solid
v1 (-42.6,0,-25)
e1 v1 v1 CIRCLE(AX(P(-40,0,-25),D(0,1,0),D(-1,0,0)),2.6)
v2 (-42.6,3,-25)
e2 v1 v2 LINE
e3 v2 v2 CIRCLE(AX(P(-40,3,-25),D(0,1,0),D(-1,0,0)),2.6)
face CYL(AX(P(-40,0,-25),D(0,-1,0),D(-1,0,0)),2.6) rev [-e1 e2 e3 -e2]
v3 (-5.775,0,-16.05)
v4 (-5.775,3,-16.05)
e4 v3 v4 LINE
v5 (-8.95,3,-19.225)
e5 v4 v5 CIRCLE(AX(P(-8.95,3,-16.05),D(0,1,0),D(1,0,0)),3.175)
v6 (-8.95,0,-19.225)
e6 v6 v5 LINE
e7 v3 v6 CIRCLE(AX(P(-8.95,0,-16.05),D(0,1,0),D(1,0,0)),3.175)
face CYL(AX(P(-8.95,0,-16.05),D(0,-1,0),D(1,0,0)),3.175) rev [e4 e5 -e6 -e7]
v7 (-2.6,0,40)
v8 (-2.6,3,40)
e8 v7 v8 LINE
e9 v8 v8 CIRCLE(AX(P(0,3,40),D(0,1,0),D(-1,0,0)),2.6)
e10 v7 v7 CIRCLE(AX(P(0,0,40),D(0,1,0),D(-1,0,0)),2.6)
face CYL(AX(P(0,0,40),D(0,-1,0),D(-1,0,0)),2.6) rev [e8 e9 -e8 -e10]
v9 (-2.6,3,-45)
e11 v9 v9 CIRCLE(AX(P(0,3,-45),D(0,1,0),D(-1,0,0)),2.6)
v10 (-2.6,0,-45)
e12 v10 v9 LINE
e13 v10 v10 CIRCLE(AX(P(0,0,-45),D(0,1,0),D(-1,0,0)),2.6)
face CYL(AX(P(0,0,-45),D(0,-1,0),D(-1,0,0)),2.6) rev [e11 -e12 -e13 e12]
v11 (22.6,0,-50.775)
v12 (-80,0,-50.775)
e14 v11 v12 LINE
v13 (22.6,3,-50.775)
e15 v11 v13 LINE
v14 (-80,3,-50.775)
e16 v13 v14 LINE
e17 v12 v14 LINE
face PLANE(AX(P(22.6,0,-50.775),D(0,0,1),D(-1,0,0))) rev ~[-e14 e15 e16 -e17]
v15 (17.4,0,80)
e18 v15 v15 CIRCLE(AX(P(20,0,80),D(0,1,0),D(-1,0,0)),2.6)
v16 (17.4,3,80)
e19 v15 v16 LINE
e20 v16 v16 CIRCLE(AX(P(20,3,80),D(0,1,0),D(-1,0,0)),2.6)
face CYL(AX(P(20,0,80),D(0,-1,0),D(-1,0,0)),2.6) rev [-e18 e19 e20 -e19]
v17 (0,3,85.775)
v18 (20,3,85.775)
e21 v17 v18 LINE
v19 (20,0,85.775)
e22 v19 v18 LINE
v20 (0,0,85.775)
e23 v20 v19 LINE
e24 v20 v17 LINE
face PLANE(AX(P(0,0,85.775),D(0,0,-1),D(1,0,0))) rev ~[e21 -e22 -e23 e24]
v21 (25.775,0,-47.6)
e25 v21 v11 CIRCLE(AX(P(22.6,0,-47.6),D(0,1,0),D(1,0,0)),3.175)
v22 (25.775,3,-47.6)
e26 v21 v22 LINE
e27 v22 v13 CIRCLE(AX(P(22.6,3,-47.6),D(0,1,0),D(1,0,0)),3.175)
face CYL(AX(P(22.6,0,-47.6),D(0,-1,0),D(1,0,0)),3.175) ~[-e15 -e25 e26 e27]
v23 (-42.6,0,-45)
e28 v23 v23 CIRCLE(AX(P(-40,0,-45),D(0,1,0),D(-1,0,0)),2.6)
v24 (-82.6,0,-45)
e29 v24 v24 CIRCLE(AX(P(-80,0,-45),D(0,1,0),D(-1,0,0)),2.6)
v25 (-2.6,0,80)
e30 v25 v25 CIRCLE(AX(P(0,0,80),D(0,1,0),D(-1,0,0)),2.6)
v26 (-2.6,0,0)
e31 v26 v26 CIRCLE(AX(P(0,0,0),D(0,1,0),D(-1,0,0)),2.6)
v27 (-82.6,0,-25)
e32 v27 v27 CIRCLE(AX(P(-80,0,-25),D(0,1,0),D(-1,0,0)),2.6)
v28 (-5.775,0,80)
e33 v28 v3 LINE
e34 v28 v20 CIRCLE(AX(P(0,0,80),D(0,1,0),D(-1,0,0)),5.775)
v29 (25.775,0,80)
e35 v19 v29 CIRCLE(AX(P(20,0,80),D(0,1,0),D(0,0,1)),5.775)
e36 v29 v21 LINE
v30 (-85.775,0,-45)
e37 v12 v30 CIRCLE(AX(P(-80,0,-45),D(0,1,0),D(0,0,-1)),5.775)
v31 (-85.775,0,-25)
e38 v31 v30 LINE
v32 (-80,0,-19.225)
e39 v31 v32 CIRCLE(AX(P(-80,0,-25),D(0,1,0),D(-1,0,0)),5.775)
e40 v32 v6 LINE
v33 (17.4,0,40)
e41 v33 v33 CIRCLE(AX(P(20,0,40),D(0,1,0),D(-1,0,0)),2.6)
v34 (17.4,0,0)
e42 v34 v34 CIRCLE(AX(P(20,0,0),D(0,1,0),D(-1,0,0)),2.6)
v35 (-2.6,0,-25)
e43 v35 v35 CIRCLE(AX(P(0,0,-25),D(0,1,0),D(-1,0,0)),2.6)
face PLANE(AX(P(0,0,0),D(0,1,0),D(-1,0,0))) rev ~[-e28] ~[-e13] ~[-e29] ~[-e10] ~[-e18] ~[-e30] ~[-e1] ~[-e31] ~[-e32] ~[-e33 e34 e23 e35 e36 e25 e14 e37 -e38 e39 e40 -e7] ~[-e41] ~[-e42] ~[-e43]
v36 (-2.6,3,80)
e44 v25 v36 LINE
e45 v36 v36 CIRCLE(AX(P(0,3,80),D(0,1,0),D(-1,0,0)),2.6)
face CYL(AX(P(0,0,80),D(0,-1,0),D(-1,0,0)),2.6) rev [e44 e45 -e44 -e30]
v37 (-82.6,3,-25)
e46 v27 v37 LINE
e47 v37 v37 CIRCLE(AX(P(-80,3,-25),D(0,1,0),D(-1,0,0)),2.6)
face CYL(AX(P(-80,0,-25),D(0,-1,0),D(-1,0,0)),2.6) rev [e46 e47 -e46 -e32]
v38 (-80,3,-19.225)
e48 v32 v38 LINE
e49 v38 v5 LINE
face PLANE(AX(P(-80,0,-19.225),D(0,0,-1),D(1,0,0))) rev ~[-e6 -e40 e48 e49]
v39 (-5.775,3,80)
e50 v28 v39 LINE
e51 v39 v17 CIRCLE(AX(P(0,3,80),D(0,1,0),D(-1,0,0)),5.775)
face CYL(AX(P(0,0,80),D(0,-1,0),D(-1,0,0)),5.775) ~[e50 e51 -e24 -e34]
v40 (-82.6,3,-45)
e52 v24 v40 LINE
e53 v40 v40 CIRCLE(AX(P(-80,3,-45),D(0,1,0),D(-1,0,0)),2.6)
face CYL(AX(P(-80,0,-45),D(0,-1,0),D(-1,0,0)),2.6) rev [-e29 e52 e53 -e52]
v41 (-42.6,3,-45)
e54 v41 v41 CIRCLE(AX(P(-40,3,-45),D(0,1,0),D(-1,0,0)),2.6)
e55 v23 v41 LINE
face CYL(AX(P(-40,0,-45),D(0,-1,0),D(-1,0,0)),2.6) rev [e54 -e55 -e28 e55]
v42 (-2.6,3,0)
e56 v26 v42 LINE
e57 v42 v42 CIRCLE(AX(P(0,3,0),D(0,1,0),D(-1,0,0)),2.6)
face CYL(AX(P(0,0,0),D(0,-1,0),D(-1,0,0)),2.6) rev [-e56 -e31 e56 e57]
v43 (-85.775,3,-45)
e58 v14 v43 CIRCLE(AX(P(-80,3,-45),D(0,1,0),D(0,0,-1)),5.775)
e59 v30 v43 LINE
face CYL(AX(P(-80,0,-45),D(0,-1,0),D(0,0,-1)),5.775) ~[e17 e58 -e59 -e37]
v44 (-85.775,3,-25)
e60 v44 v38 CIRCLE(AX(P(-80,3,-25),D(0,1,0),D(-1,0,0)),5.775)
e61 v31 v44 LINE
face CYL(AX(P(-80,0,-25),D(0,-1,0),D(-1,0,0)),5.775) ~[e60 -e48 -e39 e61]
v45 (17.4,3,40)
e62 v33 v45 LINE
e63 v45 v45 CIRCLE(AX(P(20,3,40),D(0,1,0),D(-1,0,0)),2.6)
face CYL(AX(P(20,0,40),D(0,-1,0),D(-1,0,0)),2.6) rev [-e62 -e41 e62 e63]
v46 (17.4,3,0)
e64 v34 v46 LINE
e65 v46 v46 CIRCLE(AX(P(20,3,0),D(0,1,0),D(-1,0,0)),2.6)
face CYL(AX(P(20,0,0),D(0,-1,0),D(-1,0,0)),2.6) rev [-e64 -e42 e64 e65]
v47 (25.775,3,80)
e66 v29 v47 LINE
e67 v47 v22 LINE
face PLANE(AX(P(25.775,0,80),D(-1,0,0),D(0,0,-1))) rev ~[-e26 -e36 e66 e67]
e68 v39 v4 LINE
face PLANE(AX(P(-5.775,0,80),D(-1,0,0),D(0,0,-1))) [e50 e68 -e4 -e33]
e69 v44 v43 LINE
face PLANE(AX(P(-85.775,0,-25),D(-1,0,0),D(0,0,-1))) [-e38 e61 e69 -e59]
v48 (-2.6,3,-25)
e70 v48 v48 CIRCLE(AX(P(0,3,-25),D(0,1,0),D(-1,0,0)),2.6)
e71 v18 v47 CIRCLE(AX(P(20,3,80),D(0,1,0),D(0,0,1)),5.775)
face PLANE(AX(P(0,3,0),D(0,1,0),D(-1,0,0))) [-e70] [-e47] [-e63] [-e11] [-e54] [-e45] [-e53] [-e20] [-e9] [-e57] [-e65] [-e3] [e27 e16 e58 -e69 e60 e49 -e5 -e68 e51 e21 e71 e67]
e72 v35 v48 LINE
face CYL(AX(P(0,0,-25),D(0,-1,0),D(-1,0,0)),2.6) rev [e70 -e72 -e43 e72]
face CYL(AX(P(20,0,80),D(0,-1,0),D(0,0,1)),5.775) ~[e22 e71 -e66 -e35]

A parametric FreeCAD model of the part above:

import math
import FreeCAD as App
import Part
import Sketcher
from FreeCAD import Vector
Q = App.Units.Quantity

doc = App.newDocument("Part")
body = doc.addObject("PartDesign::Body", "Body")

# Sketch on XZ plane
sketch1 = doc.addObject("Sketcher::SketchObject", "Sketch")
body.addObject(sketch1)
sketch1.AttachmentSupport = (doc.XZ_Plane, [""])
sketch1.MapMode = "FlatFace"
sketch1.addGeometry([
    Part.LineSegment(Vector(-5.8, -16.1, 0), Vector(-5.8, 80, 0)),  # 0
    Part.ArcOfCircle(Part.Circle(Vector(0, 80, 0), Vector(0, 0, 1), 5.8), math.radians(90), math.radians(180)),  # 1
    Part.LineSegment(Vector(0, 85.8, 0), Vector(20, 85.8, 0)),  # 2
    Part.ArcOfCircle(Part.Circle(Vector(20, 80, 0), Vector(0, 0, 1), 5.8), math.radians(0), math.radians(90)),  # 3
    Part.LineSegment(Vector(25.8, 80, 0), Vector(25.8, -47.6, 0)),  # 4
    Part.ArcOfCircle(Part.Circle(Vector(22.6, -47.6, 0), Vector(0, 0, 1), 3.2), math.radians(-90), math.radians(0)),  # 5
    Part.LineSegment(Vector(22.6, -50.8, 0), Vector(-80, -50.8, 0)),  # 6
    Part.ArcOfCircle(Part.Circle(Vector(-80, -45, 0), Vector(0, 0, 1), 5.8), math.radians(180), math.radians(270)),  # 7
    Part.LineSegment(Vector(-85.8, -45, 0), Vector(-85.8, -25, 0)),  # 8
    Part.ArcOfCircle(Part.Circle(Vector(-80, -25, 0), Vector(0, 0, 1), 5.8), math.radians(90), math.radians(180)),  # 9
    Part.LineSegment(Vector(-80, -19.2, 0), Vector(-8.9, -19.2, 0)),  # 10
    Part.ArcOfCircle(Part.Circle(Vector(-8.9, -16.1, 0), Vector(0, 0, 1), 3.2), math.radians(-90), math.radians(0)),  # 11
    Part.Circle(Vector(0, -45, 0), Vector(0, 0, 1), 2.6),  # 12
    Part.Circle(Vector(0, -25, 0), Vector(0, 0, 1), 2.6),  # 13
    Part.Circle(Vector(20, 0, 0), Vector(0, 0, 1), 2.6),  # 14
    Part.Circle(Vector(0, 0, 0), Vector(0, 0, 1), 2.6),  # 15
    Part.Circle(Vector(-40, -45, 0), Vector(0, 0, 1), 2.6),  # 16
    Part.Circle(Vector(-40, -25, 0), Vector(0, 0, 1), 2.6),  # 17
    Part.Circle(Vector(-80, -45, 0), Vector(0, 0, 1), 2.6),  # 18
    Part.Circle(Vector(-80, -25, 0), Vector(0, 0, 1), 2.6),  # 19
    Part.Circle(Vector(20, 40, 0), Vector(0, 0, 1), 2.6),  # 20
    Part.Circle(Vector(0, 40, 0), Vector(0, 0, 1), 2.6),  # 21
    Part.Circle(Vector(20, 80, 0), Vector(0, 0, 1), 2.6),  # 22
    Part.Circle(Vector(0, 80, 0), Vector(0, 0, 1), 2.6),  # 23
], False)
sketch1.addConstraint([
    Sketcher.Constraint("Tangent", 0, 2, 1, 2),
    Sketcher.Constraint("Tangent", 1, 1, 2, 1),
    Sketcher.Constraint("Tangent", 2, 2, 3, 2),
    Sketcher.Constraint("Tangent", 3, 1, 4, 1),
    Sketcher.Constraint("Tangent", 4, 2, 5, 2),
    Sketcher.Constraint("Tangent", 5, 1, 6, 1),
    Sketcher.Constraint("Tangent", 6, 2, 7, 2),
    Sketcher.Constraint("Tangent", 7, 1, 8, 1),
    Sketcher.Constraint("Tangent", 8, 2, 9, 2),
    Sketcher.Constraint("Tangent", 9, 1, 10, 1),
    Sketcher.Constraint("Tangent", 10, 2, 11, 1),
    Sketcher.Constraint("Tangent", 11, 2, 0, 1),
    Sketcher.Constraint("Vertical", 0),
    Sketcher.Constraint("Horizontal", 2),
    Sketcher.Constraint("Vertical", 4),
    Sketcher.Constraint("Horizontal", 6),
    Sketcher.Constraint("Vertical", 8),
    Sketcher.Constraint("Horizontal", 10),
    Sketcher.Constraint("Coincident", 15, 3, -1, 1),
    Sketcher.Constraint("Coincident", 18, 3, 7, 3),
    Sketcher.Constraint("Coincident", 19, 3, 9, 3),
    Sketcher.Constraint("Coincident", 22, 3, 3, 3),
    Sketcher.Constraint("Coincident", 23, 3, 1, 3),
    Sketcher.Constraint("Equal", 1, 3),
    Sketcher.Constraint("Equal", 3, 7),
    Sketcher.Constraint("Equal", 7, 9),
    Sketcher.Constraint("Equal", 5, 11),
    Sketcher.Constraint("Equal", 12, 13),
    Sketcher.Constraint("Equal", 13, 14),
    Sketcher.Constraint("Equal", 14, 15),
    Sketcher.Constraint("Equal", 15, 16),
    Sketcher.Constraint("Equal", 16, 17),
    Sketcher.Constraint("Equal", 17, 18),
    Sketcher.Constraint("Equal", 18, 19),
    Sketcher.Constraint("Equal", 19, 20),
    Sketcher.Constraint("Equal", 20, 21),
    Sketcher.Constraint("Equal", 21, 22),
    Sketcher.Constraint("Equal", 22, 23),
    Sketcher.Constraint("PointOnObject", 1, 3, -2),
    Sketcher.Constraint("PointOnObject", 12, 3, -2),
    Sketcher.Constraint("PointOnObject", 13, 3, -2),
    Sketcher.Constraint("PointOnObject", 14, 3, -1),
    Sketcher.Constraint("PointOnObject", 21, 3, -2),
    Sketcher.Constraint("Horizontal", 7, 3, 12, 3),
    Sketcher.Constraint("Horizontal", 9, 3, 13, 3),
    Sketcher.Constraint("Horizontal", 12, 3, 16, 3),
    Sketcher.Constraint("Horizontal", 13, 3, 17, 3),
    Sketcher.Constraint("Horizontal", 20, 3, 21, 3),
    Sketcher.Constraint("Vertical", 3, 3, 14, 3),
    Sketcher.Constraint("Vertical", 16, 3, 17, 3),
    Sketcher.Constraint("Vertical", 14, 3, 20, 3),
    Sketcher.Constraint("Equal", 2, 8),
    Sketcher.Constraint("Diameter", 12, Q("5.2 mm")),
    Sketcher.Constraint("DistanceX", 2, 1, 2, 2, Q("20 mm")),
    Sketcher.Constraint("DistanceY", 9, 3, -1, 1, Q("25 mm")),
    Sketcher.Constraint("DistanceX", 16, 3, -1, 1, Q("40 mm")),
    Sketcher.Constraint("DistanceY", -1, 1, 20, 3, Q("40 mm")),
    Sketcher.Constraint("Radius", 5, Q("3.175 mm")),
    Sketcher.Constraint("DistanceX", 7, 3, 16, 3, Q("40 mm")),
    Sketcher.Constraint("DistanceY", 20, 3, 3, 3, Q("40 mm")),
    Sketcher.Constraint("DistanceX", 6, 2, 6, 1, Q("102.6 mm")),
])
pad1 = doc.addObject("PartDesign::Pad", "Pad")
body.addObject(pad1)
pad1.Profile = sketch1
pad1.Length = 3
pad1.Reversed = True

doc.recompute()
